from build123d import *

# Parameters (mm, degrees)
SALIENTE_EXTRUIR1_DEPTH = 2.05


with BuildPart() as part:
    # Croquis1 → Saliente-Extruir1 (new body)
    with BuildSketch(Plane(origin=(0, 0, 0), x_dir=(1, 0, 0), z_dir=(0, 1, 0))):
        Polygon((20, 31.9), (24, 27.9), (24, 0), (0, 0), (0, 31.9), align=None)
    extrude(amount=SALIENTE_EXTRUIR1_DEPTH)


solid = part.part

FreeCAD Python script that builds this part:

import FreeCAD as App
import Part
import Sketcher
Q = App.Units.Quantity

doc = App.newDocument("Part")
body = doc.addObject("PartDesign::Body", "Body")

# Sketch on XZ plane
sketch1 = body.newObject("Sketcher::SketchObject", "Sketch")
sketch1.AttachmentSupport = (doc.getObject("XZ_Plane"), [""])
sketch1.MapMode = "FlatFace"
sketch1.addGeometry([
    Part.LineSegment(App.Vector(24, -28, 0), App.Vector(20, -32, 0)),  # 0
    Part.LineSegment(App.Vector(20, -32, 0), App.Vector(0, -32, 0)),  # 1
    Part.LineSegment(App.Vector(0, -32, 0), App.Vector(0, 0, 0)),  # 2
    Part.LineSegment(App.Vector(0, 0, 0), App.Vector(24, 0, 0)),  # 3
    Part.LineSegment(App.Vector(24, 0, 0), App.Vector(24, -28, 0)),  # 4
], False)
sketch1.addConstraint([
    Sketcher.Constraint("Coincident", 0, 2, 1, 1),
    Sketcher.Constraint("Coincident", 1, 2, 2, 1),
    Sketcher.Constraint("Coincident", 2, 2, 3, 1),
    Sketcher.Constraint("Coincident", 3, 2, 4, 1),
    Sketcher.Constraint("Coincident", 4, 2, 0, 1),
    Sketcher.Constraint("Horizontal", 1),
    Sketcher.Constraint("Vertical", 2),
    Sketcher.Constraint("Horizontal", 3),
    Sketcher.Constraint("Vertical", 4),
    Sketcher.Constraint("Coincident", 2, 2, -1, 1),
    Sketcher.Constraint("DistanceX", 1, 2, 1, 1, Q("20 mm")),
    Sketcher.Constraint("DistanceX", 3, 1, 3, 2, Q("24 mm")),
    Sketcher.Constraint("Angle", 0, Q("-135 deg")),
    Sketcher.Constraint("DistanceY", 2, 1, 2, 2, Q("31.9 mm")),
])
pad1 = body.newObject("PartDesign::Pad", "Pad")
pad1.Profile = sketch1
pad1.Length = 2.05
pad1.Reversed = True

doc.recompute()
